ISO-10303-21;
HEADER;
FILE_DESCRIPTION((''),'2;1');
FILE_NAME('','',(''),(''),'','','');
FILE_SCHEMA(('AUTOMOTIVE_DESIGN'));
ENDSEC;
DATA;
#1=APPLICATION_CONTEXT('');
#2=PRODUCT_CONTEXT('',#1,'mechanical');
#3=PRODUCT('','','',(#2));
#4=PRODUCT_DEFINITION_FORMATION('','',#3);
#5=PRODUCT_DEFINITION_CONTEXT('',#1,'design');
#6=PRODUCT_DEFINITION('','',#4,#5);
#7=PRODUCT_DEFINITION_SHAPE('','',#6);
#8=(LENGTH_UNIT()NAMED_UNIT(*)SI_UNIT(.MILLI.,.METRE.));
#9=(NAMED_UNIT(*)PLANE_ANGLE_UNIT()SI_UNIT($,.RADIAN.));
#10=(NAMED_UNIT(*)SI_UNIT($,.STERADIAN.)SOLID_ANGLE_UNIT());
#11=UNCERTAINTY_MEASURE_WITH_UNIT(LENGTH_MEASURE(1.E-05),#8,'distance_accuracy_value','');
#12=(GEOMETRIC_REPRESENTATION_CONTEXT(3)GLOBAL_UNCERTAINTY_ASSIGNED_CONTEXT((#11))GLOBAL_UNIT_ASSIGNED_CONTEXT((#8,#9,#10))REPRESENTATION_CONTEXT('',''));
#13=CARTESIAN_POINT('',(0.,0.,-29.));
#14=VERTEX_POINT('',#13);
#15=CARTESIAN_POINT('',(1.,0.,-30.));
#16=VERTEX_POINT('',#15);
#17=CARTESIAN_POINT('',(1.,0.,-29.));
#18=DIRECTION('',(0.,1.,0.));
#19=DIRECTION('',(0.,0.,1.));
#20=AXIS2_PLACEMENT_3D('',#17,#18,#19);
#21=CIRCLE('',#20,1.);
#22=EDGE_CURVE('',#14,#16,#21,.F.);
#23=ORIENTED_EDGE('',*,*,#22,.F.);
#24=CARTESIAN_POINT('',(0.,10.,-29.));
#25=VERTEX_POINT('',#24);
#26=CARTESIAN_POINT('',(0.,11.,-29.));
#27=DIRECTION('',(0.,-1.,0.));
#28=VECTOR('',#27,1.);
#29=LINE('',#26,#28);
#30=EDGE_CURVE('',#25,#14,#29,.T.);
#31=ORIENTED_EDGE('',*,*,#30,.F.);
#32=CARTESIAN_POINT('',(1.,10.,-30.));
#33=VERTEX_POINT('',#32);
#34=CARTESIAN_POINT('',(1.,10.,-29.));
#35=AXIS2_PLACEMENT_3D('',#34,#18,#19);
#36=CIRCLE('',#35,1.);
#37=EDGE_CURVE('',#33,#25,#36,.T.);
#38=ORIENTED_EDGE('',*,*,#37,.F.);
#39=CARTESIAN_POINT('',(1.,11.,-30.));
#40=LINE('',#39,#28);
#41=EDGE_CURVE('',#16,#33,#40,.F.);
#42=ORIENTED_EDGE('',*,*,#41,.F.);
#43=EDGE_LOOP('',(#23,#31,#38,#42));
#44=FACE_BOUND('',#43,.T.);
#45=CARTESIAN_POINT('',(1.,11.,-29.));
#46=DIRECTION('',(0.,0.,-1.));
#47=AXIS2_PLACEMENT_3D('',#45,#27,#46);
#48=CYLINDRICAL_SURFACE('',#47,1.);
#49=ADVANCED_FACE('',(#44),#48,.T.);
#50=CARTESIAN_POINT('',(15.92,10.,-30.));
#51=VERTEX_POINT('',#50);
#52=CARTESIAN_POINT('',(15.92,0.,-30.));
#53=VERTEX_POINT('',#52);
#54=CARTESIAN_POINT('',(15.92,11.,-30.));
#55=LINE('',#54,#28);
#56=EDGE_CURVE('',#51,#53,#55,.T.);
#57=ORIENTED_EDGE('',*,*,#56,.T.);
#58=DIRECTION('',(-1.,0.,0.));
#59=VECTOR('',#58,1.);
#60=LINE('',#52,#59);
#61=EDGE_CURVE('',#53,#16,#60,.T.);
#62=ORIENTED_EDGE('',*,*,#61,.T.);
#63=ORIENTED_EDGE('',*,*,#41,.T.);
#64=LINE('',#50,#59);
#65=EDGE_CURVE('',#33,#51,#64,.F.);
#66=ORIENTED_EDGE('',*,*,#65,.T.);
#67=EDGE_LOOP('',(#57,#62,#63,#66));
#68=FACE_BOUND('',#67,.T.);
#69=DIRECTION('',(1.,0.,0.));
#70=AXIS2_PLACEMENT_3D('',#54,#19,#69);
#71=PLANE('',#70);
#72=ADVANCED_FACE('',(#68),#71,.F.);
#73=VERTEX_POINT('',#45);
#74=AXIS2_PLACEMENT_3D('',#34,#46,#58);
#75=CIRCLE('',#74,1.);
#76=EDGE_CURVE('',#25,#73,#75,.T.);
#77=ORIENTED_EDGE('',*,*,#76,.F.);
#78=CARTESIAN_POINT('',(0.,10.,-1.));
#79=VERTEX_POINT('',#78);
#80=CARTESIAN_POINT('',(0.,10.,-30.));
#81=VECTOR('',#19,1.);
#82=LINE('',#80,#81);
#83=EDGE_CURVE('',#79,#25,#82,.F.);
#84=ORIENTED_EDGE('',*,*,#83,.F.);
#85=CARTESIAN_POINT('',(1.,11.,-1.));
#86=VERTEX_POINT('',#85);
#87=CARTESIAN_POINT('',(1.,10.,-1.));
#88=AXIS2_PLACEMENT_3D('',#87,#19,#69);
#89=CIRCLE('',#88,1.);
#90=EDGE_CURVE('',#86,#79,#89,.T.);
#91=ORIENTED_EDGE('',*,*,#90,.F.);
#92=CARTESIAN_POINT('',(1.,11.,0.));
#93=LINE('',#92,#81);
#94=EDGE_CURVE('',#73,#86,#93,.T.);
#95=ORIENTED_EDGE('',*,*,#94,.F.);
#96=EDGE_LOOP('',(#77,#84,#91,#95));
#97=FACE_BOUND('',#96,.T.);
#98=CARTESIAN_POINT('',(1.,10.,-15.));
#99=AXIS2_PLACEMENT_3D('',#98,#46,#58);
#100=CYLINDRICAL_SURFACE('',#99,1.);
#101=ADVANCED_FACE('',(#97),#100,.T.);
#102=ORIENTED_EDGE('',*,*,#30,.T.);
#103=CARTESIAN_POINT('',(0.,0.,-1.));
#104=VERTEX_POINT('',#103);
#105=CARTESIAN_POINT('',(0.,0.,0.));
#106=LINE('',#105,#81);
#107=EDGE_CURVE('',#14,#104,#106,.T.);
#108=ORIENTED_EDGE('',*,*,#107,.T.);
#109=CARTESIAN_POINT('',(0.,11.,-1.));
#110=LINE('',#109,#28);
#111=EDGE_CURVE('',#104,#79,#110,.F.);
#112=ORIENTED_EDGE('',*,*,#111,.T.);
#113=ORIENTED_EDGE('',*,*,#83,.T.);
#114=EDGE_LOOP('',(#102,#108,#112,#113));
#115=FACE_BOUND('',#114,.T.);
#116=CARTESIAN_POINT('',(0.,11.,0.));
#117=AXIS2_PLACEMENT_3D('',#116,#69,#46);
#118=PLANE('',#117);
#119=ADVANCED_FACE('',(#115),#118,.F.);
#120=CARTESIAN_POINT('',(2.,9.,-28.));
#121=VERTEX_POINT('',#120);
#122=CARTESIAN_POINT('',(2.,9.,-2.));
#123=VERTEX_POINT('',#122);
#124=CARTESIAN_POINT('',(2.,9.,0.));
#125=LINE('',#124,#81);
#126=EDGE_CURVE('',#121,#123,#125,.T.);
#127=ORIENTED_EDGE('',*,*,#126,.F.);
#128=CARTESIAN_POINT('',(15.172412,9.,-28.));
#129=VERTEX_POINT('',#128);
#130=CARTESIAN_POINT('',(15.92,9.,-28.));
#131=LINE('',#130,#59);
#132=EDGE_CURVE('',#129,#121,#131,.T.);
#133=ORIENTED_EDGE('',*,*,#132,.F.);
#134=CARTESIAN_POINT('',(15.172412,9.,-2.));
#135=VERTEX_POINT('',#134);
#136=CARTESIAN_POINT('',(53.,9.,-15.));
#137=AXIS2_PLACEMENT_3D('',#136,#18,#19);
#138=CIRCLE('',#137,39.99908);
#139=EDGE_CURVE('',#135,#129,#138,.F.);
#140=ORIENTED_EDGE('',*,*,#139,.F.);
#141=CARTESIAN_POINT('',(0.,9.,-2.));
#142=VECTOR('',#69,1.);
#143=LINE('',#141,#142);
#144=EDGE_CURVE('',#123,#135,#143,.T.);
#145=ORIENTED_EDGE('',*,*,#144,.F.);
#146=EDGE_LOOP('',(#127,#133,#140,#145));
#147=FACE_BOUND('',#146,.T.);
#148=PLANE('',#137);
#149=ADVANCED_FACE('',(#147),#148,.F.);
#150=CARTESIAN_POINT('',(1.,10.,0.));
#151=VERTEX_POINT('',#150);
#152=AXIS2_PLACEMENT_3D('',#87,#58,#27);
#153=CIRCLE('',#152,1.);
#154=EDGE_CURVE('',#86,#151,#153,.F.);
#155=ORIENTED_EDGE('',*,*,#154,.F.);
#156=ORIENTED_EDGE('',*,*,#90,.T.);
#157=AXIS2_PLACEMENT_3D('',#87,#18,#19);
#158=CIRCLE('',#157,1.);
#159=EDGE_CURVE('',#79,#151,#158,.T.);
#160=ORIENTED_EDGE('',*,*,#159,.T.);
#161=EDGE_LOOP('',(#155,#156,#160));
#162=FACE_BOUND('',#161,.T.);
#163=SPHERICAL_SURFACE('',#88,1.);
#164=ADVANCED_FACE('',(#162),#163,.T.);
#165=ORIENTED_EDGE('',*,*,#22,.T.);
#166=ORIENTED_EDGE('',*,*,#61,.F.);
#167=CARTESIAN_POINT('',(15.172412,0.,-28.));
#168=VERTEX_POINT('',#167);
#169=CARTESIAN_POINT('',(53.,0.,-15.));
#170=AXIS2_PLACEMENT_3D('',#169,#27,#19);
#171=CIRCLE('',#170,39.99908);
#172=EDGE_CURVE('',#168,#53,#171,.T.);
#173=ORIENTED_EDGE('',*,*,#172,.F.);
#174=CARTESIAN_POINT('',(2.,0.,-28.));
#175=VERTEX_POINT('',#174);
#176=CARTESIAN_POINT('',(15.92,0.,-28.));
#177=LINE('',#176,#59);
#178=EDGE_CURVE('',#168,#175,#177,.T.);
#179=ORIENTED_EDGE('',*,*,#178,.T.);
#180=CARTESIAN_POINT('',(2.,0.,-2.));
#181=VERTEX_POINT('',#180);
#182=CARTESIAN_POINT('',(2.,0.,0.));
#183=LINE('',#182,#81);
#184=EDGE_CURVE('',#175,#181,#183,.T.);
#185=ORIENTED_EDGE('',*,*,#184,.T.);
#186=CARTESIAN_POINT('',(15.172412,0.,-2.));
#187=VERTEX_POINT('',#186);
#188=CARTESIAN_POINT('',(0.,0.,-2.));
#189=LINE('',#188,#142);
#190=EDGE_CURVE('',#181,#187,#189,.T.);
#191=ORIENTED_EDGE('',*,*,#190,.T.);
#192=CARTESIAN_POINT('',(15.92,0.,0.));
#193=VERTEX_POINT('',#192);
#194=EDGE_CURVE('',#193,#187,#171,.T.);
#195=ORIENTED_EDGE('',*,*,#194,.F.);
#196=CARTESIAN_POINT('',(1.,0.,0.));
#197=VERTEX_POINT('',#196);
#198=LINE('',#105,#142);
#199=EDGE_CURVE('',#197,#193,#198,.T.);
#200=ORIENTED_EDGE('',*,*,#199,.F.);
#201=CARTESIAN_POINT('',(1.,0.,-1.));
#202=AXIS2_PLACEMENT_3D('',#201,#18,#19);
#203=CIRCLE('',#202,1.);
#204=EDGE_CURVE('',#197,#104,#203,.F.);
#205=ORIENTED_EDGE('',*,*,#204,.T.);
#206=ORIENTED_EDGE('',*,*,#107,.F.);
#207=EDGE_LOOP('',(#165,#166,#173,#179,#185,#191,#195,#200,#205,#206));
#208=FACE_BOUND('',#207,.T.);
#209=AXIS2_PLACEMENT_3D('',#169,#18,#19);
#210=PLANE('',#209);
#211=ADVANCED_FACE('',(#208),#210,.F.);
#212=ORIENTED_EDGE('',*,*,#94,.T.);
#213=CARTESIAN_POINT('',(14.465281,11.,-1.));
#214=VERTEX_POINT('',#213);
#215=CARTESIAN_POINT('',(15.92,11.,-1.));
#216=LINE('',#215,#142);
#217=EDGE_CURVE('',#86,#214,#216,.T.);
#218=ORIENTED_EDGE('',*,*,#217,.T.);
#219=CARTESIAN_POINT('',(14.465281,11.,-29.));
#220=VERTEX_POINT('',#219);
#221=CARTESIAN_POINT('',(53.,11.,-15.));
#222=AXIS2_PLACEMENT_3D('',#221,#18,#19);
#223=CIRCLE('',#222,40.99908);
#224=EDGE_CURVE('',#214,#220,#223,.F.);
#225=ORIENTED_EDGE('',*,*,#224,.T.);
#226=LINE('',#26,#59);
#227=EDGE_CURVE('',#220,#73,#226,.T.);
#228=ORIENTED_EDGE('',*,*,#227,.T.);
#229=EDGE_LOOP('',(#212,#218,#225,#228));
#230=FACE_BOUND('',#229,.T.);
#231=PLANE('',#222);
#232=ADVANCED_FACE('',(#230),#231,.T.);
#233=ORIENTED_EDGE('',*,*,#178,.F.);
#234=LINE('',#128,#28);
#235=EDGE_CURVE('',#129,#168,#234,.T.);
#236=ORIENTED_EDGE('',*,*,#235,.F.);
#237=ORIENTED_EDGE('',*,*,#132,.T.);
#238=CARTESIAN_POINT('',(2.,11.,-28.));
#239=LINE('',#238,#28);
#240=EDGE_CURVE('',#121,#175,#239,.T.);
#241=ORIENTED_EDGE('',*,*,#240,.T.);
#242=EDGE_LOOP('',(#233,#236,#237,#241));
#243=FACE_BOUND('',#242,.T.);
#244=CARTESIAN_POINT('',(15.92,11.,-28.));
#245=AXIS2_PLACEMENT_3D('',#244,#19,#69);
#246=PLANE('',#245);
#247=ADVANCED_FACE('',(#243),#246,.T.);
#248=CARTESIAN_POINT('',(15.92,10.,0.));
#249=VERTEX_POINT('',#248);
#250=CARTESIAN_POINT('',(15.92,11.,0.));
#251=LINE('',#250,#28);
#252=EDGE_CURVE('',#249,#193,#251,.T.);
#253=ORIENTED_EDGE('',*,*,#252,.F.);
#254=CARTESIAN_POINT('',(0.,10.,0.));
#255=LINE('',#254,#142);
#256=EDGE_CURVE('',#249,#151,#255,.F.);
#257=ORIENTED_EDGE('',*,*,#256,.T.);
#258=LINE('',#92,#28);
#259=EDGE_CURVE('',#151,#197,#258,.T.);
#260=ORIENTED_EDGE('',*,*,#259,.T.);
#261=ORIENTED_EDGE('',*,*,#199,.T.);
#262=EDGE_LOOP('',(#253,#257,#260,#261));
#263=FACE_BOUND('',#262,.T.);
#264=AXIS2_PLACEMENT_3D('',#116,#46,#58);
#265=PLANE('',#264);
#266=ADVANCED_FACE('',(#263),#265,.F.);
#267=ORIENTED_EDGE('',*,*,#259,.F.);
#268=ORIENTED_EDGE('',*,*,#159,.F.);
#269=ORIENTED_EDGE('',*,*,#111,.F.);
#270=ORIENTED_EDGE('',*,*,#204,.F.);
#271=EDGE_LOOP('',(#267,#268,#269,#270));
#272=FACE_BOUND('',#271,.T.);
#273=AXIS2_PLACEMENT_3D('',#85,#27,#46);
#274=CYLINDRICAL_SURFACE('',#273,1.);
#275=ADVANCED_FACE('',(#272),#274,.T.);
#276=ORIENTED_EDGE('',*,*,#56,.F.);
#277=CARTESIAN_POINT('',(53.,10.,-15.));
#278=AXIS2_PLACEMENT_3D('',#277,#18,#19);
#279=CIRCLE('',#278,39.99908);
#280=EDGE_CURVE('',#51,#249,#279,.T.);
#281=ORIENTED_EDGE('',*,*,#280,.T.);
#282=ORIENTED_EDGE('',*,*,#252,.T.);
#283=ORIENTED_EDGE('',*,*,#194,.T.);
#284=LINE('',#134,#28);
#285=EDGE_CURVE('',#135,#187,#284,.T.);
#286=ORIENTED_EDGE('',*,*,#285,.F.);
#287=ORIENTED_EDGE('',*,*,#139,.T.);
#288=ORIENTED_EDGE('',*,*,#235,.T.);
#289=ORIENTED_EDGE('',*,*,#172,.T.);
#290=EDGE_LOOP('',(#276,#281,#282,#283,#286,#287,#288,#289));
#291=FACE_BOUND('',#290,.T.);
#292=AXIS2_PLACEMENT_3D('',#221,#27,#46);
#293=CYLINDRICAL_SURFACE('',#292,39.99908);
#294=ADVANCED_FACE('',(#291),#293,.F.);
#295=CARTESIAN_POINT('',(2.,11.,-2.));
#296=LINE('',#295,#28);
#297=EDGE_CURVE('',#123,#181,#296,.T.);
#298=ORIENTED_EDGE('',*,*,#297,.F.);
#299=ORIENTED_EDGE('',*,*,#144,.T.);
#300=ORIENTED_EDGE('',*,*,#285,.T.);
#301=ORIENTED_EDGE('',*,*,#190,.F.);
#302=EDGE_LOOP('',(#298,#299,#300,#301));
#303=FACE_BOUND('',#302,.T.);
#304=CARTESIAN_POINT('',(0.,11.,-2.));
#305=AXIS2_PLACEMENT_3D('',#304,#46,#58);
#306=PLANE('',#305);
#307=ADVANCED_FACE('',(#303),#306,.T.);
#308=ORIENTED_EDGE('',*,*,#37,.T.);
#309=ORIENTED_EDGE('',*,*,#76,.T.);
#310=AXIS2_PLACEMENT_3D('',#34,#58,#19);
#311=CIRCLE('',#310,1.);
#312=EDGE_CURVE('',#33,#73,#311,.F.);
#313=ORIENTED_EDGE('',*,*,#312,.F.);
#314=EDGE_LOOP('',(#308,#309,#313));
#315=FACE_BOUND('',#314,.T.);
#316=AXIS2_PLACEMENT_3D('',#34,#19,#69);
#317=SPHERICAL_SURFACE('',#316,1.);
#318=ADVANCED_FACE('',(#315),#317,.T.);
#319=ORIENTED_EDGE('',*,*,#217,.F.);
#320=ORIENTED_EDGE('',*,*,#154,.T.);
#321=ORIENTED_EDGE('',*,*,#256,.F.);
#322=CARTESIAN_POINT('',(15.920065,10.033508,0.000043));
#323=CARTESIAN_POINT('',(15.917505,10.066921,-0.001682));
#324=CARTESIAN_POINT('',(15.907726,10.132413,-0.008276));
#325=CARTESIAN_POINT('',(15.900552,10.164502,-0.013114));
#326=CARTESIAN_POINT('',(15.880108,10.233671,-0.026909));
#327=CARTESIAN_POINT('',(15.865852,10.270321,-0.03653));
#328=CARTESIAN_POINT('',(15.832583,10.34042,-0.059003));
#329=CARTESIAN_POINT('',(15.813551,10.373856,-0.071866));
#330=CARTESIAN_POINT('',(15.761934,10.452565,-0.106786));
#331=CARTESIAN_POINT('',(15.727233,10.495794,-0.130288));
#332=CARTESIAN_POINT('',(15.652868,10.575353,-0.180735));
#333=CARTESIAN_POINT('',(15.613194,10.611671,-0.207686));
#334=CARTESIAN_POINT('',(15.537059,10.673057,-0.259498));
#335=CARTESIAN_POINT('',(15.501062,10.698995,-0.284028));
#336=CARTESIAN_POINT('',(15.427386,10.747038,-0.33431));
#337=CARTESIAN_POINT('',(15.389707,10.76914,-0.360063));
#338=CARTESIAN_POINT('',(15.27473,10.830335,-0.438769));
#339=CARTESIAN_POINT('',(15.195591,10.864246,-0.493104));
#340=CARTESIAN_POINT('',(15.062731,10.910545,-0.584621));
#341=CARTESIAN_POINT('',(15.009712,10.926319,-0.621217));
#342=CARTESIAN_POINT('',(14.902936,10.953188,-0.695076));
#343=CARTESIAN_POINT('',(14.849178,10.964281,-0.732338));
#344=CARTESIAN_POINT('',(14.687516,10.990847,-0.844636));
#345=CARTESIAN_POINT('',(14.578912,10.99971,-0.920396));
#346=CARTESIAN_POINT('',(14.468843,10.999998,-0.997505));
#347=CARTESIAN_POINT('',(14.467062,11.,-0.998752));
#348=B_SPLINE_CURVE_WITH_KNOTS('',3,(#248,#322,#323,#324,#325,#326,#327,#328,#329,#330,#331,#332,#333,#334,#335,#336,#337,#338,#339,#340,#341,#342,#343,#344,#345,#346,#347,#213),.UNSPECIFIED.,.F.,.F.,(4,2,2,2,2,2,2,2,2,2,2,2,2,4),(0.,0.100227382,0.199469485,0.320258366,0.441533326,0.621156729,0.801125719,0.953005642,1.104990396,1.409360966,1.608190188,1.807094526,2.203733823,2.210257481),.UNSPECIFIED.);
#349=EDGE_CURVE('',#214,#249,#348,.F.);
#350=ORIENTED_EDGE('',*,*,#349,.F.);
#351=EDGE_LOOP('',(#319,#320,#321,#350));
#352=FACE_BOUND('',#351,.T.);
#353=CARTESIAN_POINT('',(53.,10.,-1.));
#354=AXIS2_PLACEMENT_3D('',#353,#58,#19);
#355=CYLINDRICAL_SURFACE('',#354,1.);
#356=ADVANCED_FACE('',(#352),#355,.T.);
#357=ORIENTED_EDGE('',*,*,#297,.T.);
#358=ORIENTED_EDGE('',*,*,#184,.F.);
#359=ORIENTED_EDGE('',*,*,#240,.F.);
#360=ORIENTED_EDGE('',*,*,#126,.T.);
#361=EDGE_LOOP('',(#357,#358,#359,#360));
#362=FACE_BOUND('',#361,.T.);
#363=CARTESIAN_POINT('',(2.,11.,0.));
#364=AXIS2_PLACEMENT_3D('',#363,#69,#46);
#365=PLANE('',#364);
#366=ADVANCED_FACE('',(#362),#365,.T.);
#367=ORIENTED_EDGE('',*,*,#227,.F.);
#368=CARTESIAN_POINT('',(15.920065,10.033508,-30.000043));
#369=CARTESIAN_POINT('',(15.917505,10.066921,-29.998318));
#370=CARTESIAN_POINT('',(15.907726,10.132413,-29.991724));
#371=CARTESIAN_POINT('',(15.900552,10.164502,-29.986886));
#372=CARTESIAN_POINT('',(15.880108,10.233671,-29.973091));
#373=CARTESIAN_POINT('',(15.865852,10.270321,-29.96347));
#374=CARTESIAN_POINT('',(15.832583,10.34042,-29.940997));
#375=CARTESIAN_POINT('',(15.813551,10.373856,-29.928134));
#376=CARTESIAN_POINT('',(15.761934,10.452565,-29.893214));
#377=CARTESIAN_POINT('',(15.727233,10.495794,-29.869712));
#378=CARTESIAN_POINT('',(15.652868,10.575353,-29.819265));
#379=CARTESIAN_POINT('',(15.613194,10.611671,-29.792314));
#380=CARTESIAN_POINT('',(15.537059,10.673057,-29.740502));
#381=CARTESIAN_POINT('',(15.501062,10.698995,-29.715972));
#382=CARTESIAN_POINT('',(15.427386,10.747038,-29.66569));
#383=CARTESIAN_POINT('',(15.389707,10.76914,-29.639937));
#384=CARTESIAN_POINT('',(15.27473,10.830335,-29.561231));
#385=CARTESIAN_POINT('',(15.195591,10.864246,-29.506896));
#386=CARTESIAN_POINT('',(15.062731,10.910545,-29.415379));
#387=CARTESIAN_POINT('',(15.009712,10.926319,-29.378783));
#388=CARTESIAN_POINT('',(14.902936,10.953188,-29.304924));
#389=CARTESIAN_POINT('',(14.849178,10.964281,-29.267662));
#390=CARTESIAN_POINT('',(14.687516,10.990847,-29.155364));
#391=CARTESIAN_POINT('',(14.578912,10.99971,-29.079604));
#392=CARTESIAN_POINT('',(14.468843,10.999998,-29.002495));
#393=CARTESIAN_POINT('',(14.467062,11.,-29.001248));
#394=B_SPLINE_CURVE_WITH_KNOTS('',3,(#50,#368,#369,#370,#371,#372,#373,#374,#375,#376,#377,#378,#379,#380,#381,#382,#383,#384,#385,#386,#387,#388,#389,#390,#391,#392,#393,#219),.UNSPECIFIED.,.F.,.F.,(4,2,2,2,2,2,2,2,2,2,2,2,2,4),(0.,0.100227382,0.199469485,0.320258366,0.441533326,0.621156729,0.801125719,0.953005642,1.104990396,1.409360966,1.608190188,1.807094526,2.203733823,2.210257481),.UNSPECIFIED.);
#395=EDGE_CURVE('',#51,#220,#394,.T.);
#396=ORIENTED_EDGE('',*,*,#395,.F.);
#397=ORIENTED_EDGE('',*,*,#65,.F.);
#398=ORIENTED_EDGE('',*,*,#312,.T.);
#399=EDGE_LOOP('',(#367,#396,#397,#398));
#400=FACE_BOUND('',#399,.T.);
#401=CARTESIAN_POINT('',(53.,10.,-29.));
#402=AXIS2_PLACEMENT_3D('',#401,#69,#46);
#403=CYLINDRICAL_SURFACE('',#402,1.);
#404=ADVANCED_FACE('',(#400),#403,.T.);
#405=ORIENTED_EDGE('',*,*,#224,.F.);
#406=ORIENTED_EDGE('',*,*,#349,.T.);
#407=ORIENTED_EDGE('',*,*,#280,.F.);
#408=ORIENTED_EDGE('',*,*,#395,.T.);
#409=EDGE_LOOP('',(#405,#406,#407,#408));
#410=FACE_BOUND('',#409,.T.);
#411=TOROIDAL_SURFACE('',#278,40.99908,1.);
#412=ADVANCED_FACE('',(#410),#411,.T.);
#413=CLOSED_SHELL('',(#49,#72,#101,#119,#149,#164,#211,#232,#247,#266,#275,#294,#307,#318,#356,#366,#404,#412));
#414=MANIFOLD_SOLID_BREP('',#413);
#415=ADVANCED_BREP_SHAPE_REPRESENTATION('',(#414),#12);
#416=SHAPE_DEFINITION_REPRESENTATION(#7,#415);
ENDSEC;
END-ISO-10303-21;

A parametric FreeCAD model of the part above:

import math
import FreeCAD as App
import Part
import Sketcher
from FreeCAD import Vector
Q = App.Units.Quantity


def edges_at(feature, points):
    """Names of the edges that pass closest to the given points."""
    edges = feature.Shape.Edges
    near = lambda p: min(range(len(edges)), key=lambda i: edges[i].distToShape(Part.Vertex(*p))[0])
    return sorted({f"Edge{near(p) + 1}" for p in points})


def faces_at(feature, points):
    """Names of the faces that lie closest to the given points."""
    faces = feature.Shape.Faces
    near = lambda p: min(range(len(faces)), key=lambda i: faces[i].distToShape(Part.Vertex(*p))[0])
    return sorted({f"Face{near(p) + 1}" for p in points})

doc = App.newDocument("Part")
body = doc.addObject("PartDesign::Body", "Body")

# Sketch on XZ plane
sketch1 = body.newObject("Sketcher::SketchObject", "Sketch")
sketch1.AttachmentSupport = (doc.getObject("XZ_Plane"), [""])
sketch1.MapMode = "FlatFace"
sketch1.addGeometry([
    Part.LineSegment(Vector(0, -30, 0), Vector(0, 0, 0)),
    Part.LineSegment(Vector(0, 0, 0), Vector(16, 0, 0)),
    Part.ArcOfCircle(Part.Circle(Vector(53, -15, 0), Vector(0, 0, 1), 40), math.radians(158), math.radians(202)),
    Part.LineSegment(Vector(16, -30, 0), Vector(0, -30, 0)),
], False)
sketch1.addConstraint([
    Sketcher.Constraint("Coincident", 0, 2, 1, 1),
    Sketcher.Constraint("Coincident", 1, 2, 2, 1),
    Sketcher.Constraint("Coincident", 2, 2, 3, 1),
    Sketcher.Constraint("Coincident", 3, 2, 0, 1),
    Sketcher.Constraint("Vertical", 0),
    Sketcher.Constraint("Horizontal", 1),
    Sketcher.Constraint("Horizontal", 3),
    Sketcher.Constraint("Coincident", 0, 2, -1, 1),
    Sketcher.Constraint("Vertical", 1, 2, 2, 2),
    Sketcher.Constraint("DistanceY", 0, 1, 0, 2, Q("30 mm")),
    Sketcher.Constraint("DistanceX", -1, 1, 2, 3, Q("53 mm")),
    Sketcher.Constraint("DistanceX", 1, 1, 1, 2, Q("15.92 mm")),
])
pad1 = body.newObject("PartDesign::Pad", "Pad")
pad1.Profile = sketch1
pad1.Length = 11
pad1.Reversed = True
doc.recompute()

thickness = body.newObject("PartDesign::Thickness", "Thickness")
thickness.Base = (pad1, faces_at(pad1, [(7.96, 0, -15), (13.001, 5.5, -15)]))
thickness.Value = 2
thickness.Reversed = True
thickness.Join = "Intersection"
doc.recompute()

fillet = body.newObject("PartDesign::Fillet", "Fillet")
fillet.Base = (thickness, edges_at(thickness, [
    (7.96, 11, -30),
    (0, 11, -15),
    (7.96, 11, 0),
    (0, 5.5, 0),
    (0, 5.5, -30),
    (13.001, 11, -15),
]))
fillet.Radius = 1

doc.recompute()
